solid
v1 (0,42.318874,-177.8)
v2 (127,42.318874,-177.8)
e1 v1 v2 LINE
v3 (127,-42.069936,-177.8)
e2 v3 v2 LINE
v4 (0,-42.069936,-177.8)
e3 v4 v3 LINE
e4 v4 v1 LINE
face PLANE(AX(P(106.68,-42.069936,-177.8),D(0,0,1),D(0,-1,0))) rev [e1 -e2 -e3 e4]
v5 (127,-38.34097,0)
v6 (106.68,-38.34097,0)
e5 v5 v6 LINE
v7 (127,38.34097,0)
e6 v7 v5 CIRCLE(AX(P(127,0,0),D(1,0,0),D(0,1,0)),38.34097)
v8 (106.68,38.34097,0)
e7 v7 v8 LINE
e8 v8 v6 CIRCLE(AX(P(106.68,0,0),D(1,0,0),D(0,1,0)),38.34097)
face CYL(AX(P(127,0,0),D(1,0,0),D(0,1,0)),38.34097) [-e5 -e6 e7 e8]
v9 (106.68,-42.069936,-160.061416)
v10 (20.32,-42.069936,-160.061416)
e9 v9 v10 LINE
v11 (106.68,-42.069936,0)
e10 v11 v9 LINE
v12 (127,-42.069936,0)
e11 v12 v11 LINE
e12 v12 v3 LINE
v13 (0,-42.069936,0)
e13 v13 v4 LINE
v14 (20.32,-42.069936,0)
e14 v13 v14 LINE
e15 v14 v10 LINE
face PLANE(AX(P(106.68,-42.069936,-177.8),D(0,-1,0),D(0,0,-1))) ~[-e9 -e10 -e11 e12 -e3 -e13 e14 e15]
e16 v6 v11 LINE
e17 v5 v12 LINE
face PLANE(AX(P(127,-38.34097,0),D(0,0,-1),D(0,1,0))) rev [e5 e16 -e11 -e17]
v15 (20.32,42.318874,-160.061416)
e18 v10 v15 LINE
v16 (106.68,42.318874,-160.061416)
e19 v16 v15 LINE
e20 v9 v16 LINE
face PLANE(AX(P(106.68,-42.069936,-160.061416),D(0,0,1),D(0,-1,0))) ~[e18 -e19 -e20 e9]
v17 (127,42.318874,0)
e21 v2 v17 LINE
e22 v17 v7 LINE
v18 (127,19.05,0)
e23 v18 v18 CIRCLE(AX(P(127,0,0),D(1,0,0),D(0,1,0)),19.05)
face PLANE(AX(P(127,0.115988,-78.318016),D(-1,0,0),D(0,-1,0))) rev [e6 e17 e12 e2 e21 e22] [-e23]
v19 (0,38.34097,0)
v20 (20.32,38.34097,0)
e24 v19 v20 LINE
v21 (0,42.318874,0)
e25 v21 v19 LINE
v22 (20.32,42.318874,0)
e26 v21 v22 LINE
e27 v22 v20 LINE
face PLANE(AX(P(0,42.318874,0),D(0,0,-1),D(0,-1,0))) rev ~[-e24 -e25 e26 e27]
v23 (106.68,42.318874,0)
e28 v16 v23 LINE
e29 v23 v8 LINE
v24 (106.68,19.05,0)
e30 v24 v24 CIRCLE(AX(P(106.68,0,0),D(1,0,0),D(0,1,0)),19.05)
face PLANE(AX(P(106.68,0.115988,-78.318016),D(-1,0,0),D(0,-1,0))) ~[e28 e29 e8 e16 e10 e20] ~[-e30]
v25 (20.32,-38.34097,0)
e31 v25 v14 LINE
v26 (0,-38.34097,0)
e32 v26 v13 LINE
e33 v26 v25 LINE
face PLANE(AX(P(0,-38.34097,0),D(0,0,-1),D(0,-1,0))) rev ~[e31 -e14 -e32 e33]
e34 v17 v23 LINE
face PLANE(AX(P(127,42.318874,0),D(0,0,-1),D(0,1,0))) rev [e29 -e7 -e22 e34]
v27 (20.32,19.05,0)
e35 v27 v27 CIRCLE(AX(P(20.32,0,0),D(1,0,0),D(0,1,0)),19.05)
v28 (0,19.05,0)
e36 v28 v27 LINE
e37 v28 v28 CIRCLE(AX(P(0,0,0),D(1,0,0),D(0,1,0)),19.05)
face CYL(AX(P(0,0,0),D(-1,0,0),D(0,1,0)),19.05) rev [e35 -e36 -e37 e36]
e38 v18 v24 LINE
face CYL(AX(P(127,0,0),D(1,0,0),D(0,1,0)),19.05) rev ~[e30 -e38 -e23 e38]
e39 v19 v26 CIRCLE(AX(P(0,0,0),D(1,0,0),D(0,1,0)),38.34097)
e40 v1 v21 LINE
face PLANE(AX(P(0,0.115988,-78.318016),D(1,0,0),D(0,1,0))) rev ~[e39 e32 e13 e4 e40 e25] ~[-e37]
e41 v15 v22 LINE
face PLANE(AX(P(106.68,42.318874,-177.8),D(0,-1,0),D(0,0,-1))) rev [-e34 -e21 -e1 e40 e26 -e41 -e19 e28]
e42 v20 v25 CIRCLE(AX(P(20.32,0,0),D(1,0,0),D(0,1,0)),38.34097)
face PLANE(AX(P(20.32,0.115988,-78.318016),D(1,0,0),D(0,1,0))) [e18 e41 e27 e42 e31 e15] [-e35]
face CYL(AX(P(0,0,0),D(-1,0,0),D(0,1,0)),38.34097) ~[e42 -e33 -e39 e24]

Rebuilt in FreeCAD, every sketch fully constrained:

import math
import FreeCAD as App
import Part
import Sketcher
from FreeCAD import Vector
Q = App.Units.Quantity


def add_polygon(sketch, points):
    """Adds a closed chain of lines whose ends are joined by coincident constraints."""
    first, n = sketch.GeometryCount, len(points)
    for a, b in zip(points, points[1:] + points[:1]):
        sketch.addGeometry(Part.LineSegment(App.Vector(*a, 0), App.Vector(*b, 0)), False)
    for i in range(n):
        sketch.addConstraint(Sketcher.Constraint("Coincident", first + i, 2, first + (i + 1) % n, 1))

doc = App.newDocument("Part")
body = doc.addObject("PartDesign::Body", "Body")

# Sketch on YZ plane
sketch1 = body.newObject("Sketcher::SketchObject", "Sketch")
sketch1.AttachmentSupport = (doc.getObject("YZ_Plane"), [""])
sketch1.MapMode = "FlatFace"
sketch1.addGeometry([
    Part.LineSegment(Vector(-38.34097, 0, 0), Vector(-42.069936, 0, 0)),  # 0
    Part.LineSegment(Vector(-42.069936, 0, 0), Vector(-42.069936, -177.8, 0)),  # 1
    Part.LineSegment(Vector(-42.069936, -177.8, 0), Vector(42.318874, -177.8, 0)),  # 2
    Part.LineSegment(Vector(42.318874, -177.8, 0), Vector(42.318874, 0, 0)),  # 3
    Part.LineSegment(Vector(42.318874, 0, 0), Vector(38.34097, 0, 0)),  # 4
    Part.ArcOfCircle(Part.Circle(Vector(0, 0, 0), Vector(0, 0, 1), 38.34097), math.radians(0), math.radians(180)),  # 5
    Part.Circle(Vector(0, 0, 0), Vector(0, 0, 1), 19.05),  # 6
], False)
sketch1.addConstraint([
    Sketcher.Constraint("Coincident", 0, 2, 1, 1),
    Sketcher.Constraint("Coincident", 1, 2, 2, 1),
    Sketcher.Constraint("Coincident", 2, 2, 3, 1),
    Sketcher.Constraint("Coincident", 3, 2, 4, 1),
    Sketcher.Constraint("Coincident", 4, 2, 5, 1),
    Sketcher.Constraint("Coincident", 5, 2, 0, 1),
    Sketcher.Constraint("Horizontal", 0),
    Sketcher.Constraint("Vertical", 1),
    Sketcher.Constraint("Horizontal", 2),
    Sketcher.Constraint("Vertical", 3),
    Sketcher.Constraint("Horizontal", 4),
    Sketcher.Constraint("Coincident", 5, 3, -1, 1),
    Sketcher.Constraint("Coincident", 6, 3, -1, 1),
    Sketcher.Constraint("PointOnObject", 0, 2, -1),
    Sketcher.Constraint("PointOnObject", 3, 2, -1),
    Sketcher.Constraint("Diameter", 6, Q("1.5 in")),
    Sketcher.Constraint("DistanceY", 1, 2, 1, 1, Q("7 in")),
    Sketcher.Constraint("Radius", 5, 38.34097),
    Sketcher.Constraint("DistanceX", 2, 1, 2, 2, 84.38881),
    Sketcher.Constraint("DistanceX", 0, 2, 0, 1, 3.728966),
])
pad1 = body.newObject("PartDesign::Pad", "Pad")
pad1.Profile = sketch1
pad1.Length = Q("0.8 in")

# Sketch on YZ plane
sketch2 = body.newObject("Sketcher::SketchObject", "Sketch001")
sketch2.AttachmentSupport = (doc.getObject("YZ_Plane"), [""])
sketch2.MapMode = "FlatFace"
sketch2.AttachmentOffset = App.Placement(Vector(0, 0, 0.8 * 25.4), App.Rotation())
add_polygon(sketch2, [(-42.069936, -160.061416), (-42.069936, -177.8), (42.318874, -177.8), (42.318874, -160.061416)])  # lines 0-3
sketch2.addConstraint([
    Sketcher.Constraint("Vertical", 0),
    Sketcher.Constraint("Horizontal", 1),
    Sketcher.Constraint("Vertical", 2),
    Sketcher.Constraint("Horizontal", 3),
    Sketcher.Constraint("DistanceY", 0, 2, -1, 1, Q("7 in")),
    Sketcher.Constraint("DistanceX", 1, 1, 1, 2, 84.38881),
    Sketcher.Constraint("DistanceY", 0, 2, 0, 1, 17.738584),
    Sketcher.Constraint("DistanceX", 0, 2, -1, 1, 42.069936),
])
pad2 = body.newObject("PartDesign::Pad", "Pad001")
pad2.Profile = sketch2
pad2.Length = Q("1.7 in")
body2 = doc.addObject("PartDesign::Body", "Body001")
doc.recompute()

body2.BaseFeature = body
doc.recompute()

mirroring = doc.addObject("Part::Mirroring", "Mirroring")
mirroring.Source = body
mirroring.Base = Vector(63.5, 0.124469, -168.930708)
mirroring.Normal = Vector(1, 0, 0)
body3 = doc.addObject("PartDesign::Body", "Body002")
body3.BaseFeature = mirroring
boolean = body2.newObject("PartDesign::Boolean", "Boolean")
boolean.Type = "Fuse"
boolean.addObjects([body3])
doc.recompute()
mirroring.Visibility = False

doc.recompute()
